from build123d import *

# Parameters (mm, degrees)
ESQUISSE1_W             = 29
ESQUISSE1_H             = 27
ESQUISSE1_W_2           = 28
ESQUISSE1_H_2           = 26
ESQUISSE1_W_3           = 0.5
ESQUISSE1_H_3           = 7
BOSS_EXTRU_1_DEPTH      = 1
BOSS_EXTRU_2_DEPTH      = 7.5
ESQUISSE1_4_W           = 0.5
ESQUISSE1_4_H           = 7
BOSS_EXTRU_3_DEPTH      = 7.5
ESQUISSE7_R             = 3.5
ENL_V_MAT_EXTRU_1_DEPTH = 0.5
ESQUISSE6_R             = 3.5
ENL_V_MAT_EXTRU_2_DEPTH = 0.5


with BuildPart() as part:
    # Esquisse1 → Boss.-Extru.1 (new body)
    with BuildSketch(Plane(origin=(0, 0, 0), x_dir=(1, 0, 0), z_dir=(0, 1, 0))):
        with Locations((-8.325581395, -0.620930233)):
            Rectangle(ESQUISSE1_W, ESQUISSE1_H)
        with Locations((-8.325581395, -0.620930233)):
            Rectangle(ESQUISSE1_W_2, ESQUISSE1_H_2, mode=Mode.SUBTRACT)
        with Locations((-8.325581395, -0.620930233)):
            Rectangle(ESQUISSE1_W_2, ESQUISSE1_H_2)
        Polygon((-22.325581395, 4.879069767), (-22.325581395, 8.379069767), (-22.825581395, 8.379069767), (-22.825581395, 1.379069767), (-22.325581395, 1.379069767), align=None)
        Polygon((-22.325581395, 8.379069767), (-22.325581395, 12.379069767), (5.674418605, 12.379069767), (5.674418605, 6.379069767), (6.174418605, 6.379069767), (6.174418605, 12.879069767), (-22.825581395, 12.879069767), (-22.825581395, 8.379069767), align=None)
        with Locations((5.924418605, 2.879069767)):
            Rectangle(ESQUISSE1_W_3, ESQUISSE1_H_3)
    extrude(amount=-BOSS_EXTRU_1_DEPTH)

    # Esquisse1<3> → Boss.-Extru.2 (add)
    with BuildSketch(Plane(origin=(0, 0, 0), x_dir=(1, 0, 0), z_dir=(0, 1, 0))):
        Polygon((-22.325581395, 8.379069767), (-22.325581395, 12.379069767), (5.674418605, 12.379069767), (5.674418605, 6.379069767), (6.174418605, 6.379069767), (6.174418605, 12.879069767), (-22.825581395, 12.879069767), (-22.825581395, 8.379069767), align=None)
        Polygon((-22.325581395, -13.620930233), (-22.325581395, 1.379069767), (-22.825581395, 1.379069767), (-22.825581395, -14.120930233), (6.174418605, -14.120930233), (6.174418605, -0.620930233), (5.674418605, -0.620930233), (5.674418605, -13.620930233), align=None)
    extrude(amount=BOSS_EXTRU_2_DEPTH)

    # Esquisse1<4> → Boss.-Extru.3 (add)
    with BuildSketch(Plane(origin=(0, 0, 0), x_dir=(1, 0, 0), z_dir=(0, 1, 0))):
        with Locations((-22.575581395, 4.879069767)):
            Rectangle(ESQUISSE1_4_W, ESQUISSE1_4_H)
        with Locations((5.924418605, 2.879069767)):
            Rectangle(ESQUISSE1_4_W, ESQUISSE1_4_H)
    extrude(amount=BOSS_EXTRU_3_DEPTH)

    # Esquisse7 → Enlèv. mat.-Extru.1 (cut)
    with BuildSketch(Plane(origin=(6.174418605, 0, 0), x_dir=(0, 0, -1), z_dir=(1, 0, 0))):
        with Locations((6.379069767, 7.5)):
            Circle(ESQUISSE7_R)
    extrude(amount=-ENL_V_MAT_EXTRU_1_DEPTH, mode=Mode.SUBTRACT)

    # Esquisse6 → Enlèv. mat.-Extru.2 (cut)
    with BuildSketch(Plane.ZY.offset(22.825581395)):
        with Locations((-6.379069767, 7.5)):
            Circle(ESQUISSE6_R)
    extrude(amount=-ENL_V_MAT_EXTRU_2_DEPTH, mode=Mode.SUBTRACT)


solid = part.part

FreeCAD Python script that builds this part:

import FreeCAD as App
import Part
import Sketcher
from FreeCAD import Vector

doc = App.newDocument("Part")
body = doc.addObject("PartDesign::Body", "Body")

# Sketch on XZ plane
sketch1 = doc.addObject("Sketcher::SketchObject", "Sketch")
body.addObject(sketch1)
sketch1.AttachmentSupport = (doc.XZ_Plane, [""])
sketch1.MapMode = "FlatFace"
sketch1.addGeometry(Part.LineSegment(Vector(-22.825581, -12.87907, 0), Vector(-22.825581, 14.12093, 0)), False)
sketch1.addGeometry(Part.LineSegment(Vector(-22.825581, 14.12093, 0), Vector(6.174419, 14.12093, 0)), False)
sketch1.addGeometry(Part.LineSegment(Vector(6.174419, 14.12093, 0), Vector(6.174419, -12.87907, 0)), False)
sketch1.addGeometry(Part.LineSegment(Vector(6.174419, -12.87907, 0), Vector(-22.825581, -12.87907, 0)), False)
sketch1.addConstraint(Sketcher.Constraint("Coincident", 0, 2, 1, 1))
sketch1.addConstraint(Sketcher.Constraint("Coincident", 1, 2, 2, 1))
sketch1.addConstraint(Sketcher.Constraint("Coincident", 2, 2, 3, 1))
sketch1.addConstraint(Sketcher.Constraint("Coincident", 3, 2, 0, 1))
sketch1.addConstraint(Sketcher.Constraint("Vertical", 0))
sketch1.addConstraint(Sketcher.Constraint("Horizontal", 1))
sketch1.addConstraint(Sketcher.Constraint("Vertical", 2))
sketch1.addConstraint(Sketcher.Constraint("Horizontal", 3))
sketch1.addConstraint(Sketcher.Constraint("DistanceX", 1, 1, 1, 2, 29.0))
sketch1.addConstraint(Sketcher.Constraint("DistanceY", 0, 1, 0, 2, 27.0))
sketch1.addConstraint(Sketcher.Constraint("DistanceX", 0, 2, -1, 1, 22.825581))
sketch1.addConstraint(Sketcher.Constraint("DistanceY", -1, 1, 0, 2, 14.12093))
pad1 = doc.addObject("PartDesign::Pad", "Pad")
body.addObject(pad1)
pad1.Profile = sketch1
pad1.Length = 1

# Sketch on XZ plane
sketch2 = doc.addObject("Sketcher::SketchObject", "Sketch001")
body.addObject(sketch2)
sketch2.AttachmentSupport = (doc.XZ_Plane, [""])
sketch2.MapMode = "FlatFace"
sketch2.addGeometry(Part.LineSegment(Vector(-22.325581, -8.37907, 0), Vector(-22.325581, -12.37907, 0)), False)
sketch2.addGeometry(Part.LineSegment(Vector(-22.325581, -12.37907, 0), Vector(5.674419, -12.37907, 0)), False)
sketch2.addGeometry(Part.LineSegment(Vector(5.674419, -12.37907, 0), Vector(5.674419, -6.37907, 0)), False)
sketch2.addGeometry(Part.LineSegment(Vector(5.674419, -6.37907, 0), Vector(6.174419, -6.37907, 0)), False)
sketch2.addGeometry(Part.LineSegment(Vector(6.174419, -6.37907, 0), Vector(6.174419, -12.87907, 0)), False)
sketch2.addGeometry(Part.LineSegment(Vector(6.174419, -12.87907, 0), Vector(-22.825581, -12.87907, 0)), False)
sketch2.addGeometry(Part.LineSegment(Vector(-22.825581, -12.87907, 0), Vector(-22.825581, -8.37907, 0)), False)
sketch2.addGeometry(Part.LineSegment(Vector(-22.825581, -8.37907, 0), Vector(-22.325581, -8.37907, 0)), False)
sketch2.addGeometry(Part.LineSegment(Vector(-22.325581, 13.62093, 0), Vector(-22.325581, -1.37907, 0)), False)
sketch2.addGeometry(Part.LineSegment(Vector(-22.325581, -1.37907, 0), Vector(-22.825581, -1.37907, 0)), False)
sketch2.addGeometry(Part.LineSegment(Vector(-22.825581, -1.37907, 0), Vector(-22.825581, 14.12093, 0)), False)
sketch2.addGeometry(Part.LineSegment(Vector(-22.825581, 14.12093, 0), Vector(6.174419, 14.12093, 0)), False)
sketch2.addGeometry(Part.LineSegment(Vector(6.174419, 14.12093, 0), Vector(6.174419, 0.62093, 0)), False)
sketch2.addGeometry(Part.LineSegment(Vector(6.174419, 0.62093, 0), Vector(5.674419, 0.62093, 0)), False)
sketch2.addGeometry(Part.LineSegment(Vector(5.674419, 0.62093, 0), Vector(5.674419, 13.62093, 0)), False)
sketch2.addGeometry(Part.LineSegment(Vector(5.674419, 13.62093, 0), Vector(-22.325581, 13.62093, 0)), False)
sketch2.addConstraint(Sketcher.Constraint("Coincident", 0, 2, 1, 1))
sketch2.addConstraint(Sketcher.Constraint("Coincident", 1, 2, 2, 1))
sketch2.addConstraint(Sketcher.Constraint("Coincident", 2, 2, 3, 1))
sketch2.addConstraint(Sketcher.Constraint("Coincident", 3, 2, 4, 1))
sketch2.addConstraint(Sketcher.Constraint("Coincident", 4, 2, 5, 1))
sketch2.addConstraint(Sketcher.Constraint("Coincident", 5, 2, 6, 1))
sketch2.addConstraint(Sketcher.Constraint("Coincident", 6, 2, 7, 1))
sketch2.addConstraint(Sketcher.Constraint("Coincident", 7, 2, 0, 1))
sketch2.addConstraint(Sketcher.Constraint("Coincident", 8, 2, 9, 1))
sketch2.addConstraint(Sketcher.Constraint("Coincident", 9, 2, 10, 1))
sketch2.addConstraint(Sketcher.Constraint("Coincident", 10, 2, 11, 1))
sketch2.addConstraint(Sketcher.Constraint("Coincident", 11, 2, 12, 1))
sketch2.addConstraint(Sketcher.Constraint("Coincident", 12, 2, 13, 1))
sketch2.addConstraint(Sketcher.Constraint("Coincident", 13, 2, 14, 1))
sketch2.addConstraint(Sketcher.Constraint("Coincident", 14, 2, 15, 1))
sketch2.addConstraint(Sketcher.Constraint("Coincident", 15, 2, 8, 1))
sketch2.addConstraint(Sketcher.Constraint("Vertical", 0))
sketch2.addConstraint(Sketcher.Constraint("Horizontal", 1))
sketch2.addConstraint(Sketcher.Constraint("Vertical", 2))
sketch2.addConstraint(Sketcher.Constraint("Horizontal", 3))
sketch2.addConstraint(Sketcher.Constraint("Vertical", 4))
sketch2.addConstraint(Sketcher.Constraint("Horizontal", 5))
sketch2.addConstraint(Sketcher.Constraint("Vertical", 6))
sketch2.addConstraint(Sketcher.Constraint("Horizontal", 7))
sketch2.addConstraint(Sketcher.Constraint("Vertical", 8))
sketch2.addConstraint(Sketcher.Constraint("Horizontal", 9))
sketch2.addConstraint(Sketcher.Constraint("Vertical", 10))
sketch2.addConstraint(Sketcher.Constraint("Horizontal", 11))
sketch2.addConstraint(Sketcher.Constraint("Vertical", 12))
sketch2.addConstraint(Sketcher.Constraint("Horizontal", 13))
sketch2.addConstraint(Sketcher.Constraint("Vertical", 14))
sketch2.addConstraint(Sketcher.Constraint("Horizontal", 15))
sketch2.addConstraint(Sketcher.Constraint("Vertical", 7, 2, 8, 2))
sketch2.addConstraint(Sketcher.Constraint("Vertical", 6, 2, 9, 2))
sketch2.addConstraint(Sketcher.Constraint("Vertical", 4, 2, 11, 2))
sketch2.addConstraint(Sketcher.Constraint("Vertical", 2, 2, 13, 2))
sketch2.addConstraint(Sketcher.Constraint("Equal", 3, 7))
sketch2.addConstraint(Sketcher.Constraint("DistanceX", 1, 1, 1, 2, 28.0))
sketch2.addConstraint(Sketcher.Constraint("DistanceX", 5, 2, 5, 1, 29.0))
sketch2.addConstraint(Sketcher.Constraint("DistanceY", 0, 2, 0, 1, 4.0))
sketch2.addConstraint(Sketcher.Constraint("DistanceY", 2, 1, 2, 2, 6.0))
sketch2.addConstraint(Sketcher.Constraint("DistanceY", 8, 2, 8, 1, 15.0))
sketch2.addConstraint(Sketcher.Constraint("DistanceY", 14, 1, 14, 2, 13.0))
sketch2.addConstraint(Sketcher.Constraint("DistanceY", 4, 2, 4, 1, 6.5))
sketch2.addConstraint(Sketcher.Constraint("DistanceY", 10, 1, 10, 2, 15.5))
sketch2.addConstraint(Sketcher.Constraint("DistanceY", 7, 2, 8, 2, 7.0))
sketch2.addConstraint(Sketcher.Constraint("DistanceX", 0, 2, -1, 1, 22.325581))
sketch2.addConstraint(Sketcher.Constraint("DistanceY", 0, 2, -1, 1, 12.37907))
pad2 = doc.addObject("PartDesign::Pad", "Pad001")
body.addObject(pad2)
pad2.Profile = sketch2
pad2.Length = 7.5
pad2.Reversed = True

# Sketch on XZ plane
sketch3 = doc.addObject("Sketcher::SketchObject", "Sketch002")
body.addObject(sketch3)
sketch3.AttachmentSupport = (doc.XZ_Plane, [""])
sketch3.MapMode = "FlatFace"
sketch3.addGeometry(Part.LineSegment(Vector(-22.825581, -8.37907, 0), Vector(-22.825581, -1.37907, 0)), False)
sketch3.addGeometry(Part.LineSegment(Vector(-22.825581, -1.37907, 0), Vector(-22.325581, -1.37907, 0)), False)
sketch3.addGeometry(Part.LineSegment(Vector(-22.325581, -1.37907, 0), Vector(-22.325581, -8.37907, 0)), False)
sketch3.addGeometry(Part.LineSegment(Vector(-22.325581, -8.37907, 0), Vector(-22.825581, -8.37907, 0)), False)
sketch3.addGeometry(Part.LineSegment(Vector(5.674419, -6.37907, 0), Vector(5.674419, 0.62093, 0)), False)
sketch3.addGeometry(Part.LineSegment(Vector(5.674419, 0.62093, 0), Vector(6.174419, 0.62093, 0)), False)
sketch3.addGeometry(Part.LineSegment(Vector(6.174419, 0.62093, 0), Vector(6.174419, -6.37907, 0)), False)
sketch3.addGeometry(Part.LineSegment(Vector(6.174419, -6.37907, 0), Vector(5.674419, -6.37907, 0)), False)
sketch3.addConstraint(Sketcher.Constraint("Coincident", 0, 2, 1, 1))
sketch3.addConstraint(Sketcher.Constraint("Coincident", 1, 2, 2, 1))
sketch3.addConstraint(Sketcher.Constraint("Coincident", 2, 2, 3, 1))
sketch3.addConstraint(Sketcher.Constraint("Coincident", 3, 2, 0, 1))
sketch3.addConstraint(Sketcher.Constraint("Coincident", 4, 2, 5, 1))
sketch3.addConstraint(Sketcher.Constraint("Coincident", 5, 2, 6, 1))
sketch3.addConstraint(Sketcher.Constraint("Coincident", 6, 2, 7, 1))
sketch3.addConstraint(Sketcher.Constraint("Coincident", 7, 2, 4, 1))
sketch3.addConstraint(Sketcher.Constraint("Vertical", 0))
sketch3.addConstraint(Sketcher.Constraint("Horizontal", 1))
sketch3.addConstraint(Sketcher.Constraint("Vertical", 2))
sketch3.addConstraint(Sketcher.Constraint("Horizontal", 3))
sketch3.addConstraint(Sketcher.Constraint("Vertical", 4))
sketch3.addConstraint(Sketcher.Constraint("Horizontal", 5))
sketch3.addConstraint(Sketcher.Constraint("Vertical", 6))
sketch3.addConstraint(Sketcher.Constraint("Horizontal", 7))
sketch3.addConstraint(Sketcher.Constraint("Equal", 3, 5))
sketch3.addConstraint(Sketcher.Constraint("Equal", 2, 4))
sketch3.addConstraint(Sketcher.Constraint("DistanceY", 0, 1, 0, 2, 7.0))
sketch3.addConstraint(Sketcher.Constraint("DistanceX", 1, 1, 1, 2, 0.5))
sketch3.addConstraint(Sketcher.Constraint("DistanceX", 1, 2, 4, 2, 28.0))
sketch3.addConstraint(Sketcher.Constraint("DistanceY", 1, 2, 4, 2, 2.0))
sketch3.addConstraint(Sketcher.Constraint("DistanceX", 0, 2, -1, 1, 22.825581))
sketch3.addConstraint(Sketcher.Constraint("DistanceY", 0, 2, -1, 1, 1.37907))
pad3 = doc.addObject("PartDesign::Pad", "Pad002")
body.addObject(pad3)
pad3.Profile = sketch3
pad3.Length = 7.5
pad3.Reversed = True

# Sketch on YZ plane
sketch4 = doc.addObject("Sketcher::SketchObject", "Sketch003")
body.addObject(sketch4)
sketch4.AttachmentSupport = (doc.YZ_Plane, [""])
sketch4.MapMode = "FlatFace"
sketch4.AttachmentOffset = App.Placement(Vector(0, 0, 6.174419), App.Rotation())
sketch4.addGeometry(Part.Circle(Vector(7.5, -6.37907, 0), Vector(0, 0, 1), 3.5), False)
sketch4.addConstraint(Sketcher.Constraint("Diameter", 0, 7.0))
sketch4.addConstraint(Sketcher.Constraint("DistanceX", -1, 1, 0, 3, 7.5))
sketch4.addConstraint(Sketcher.Constraint("DistanceY", 0, 3, -1, 1, 6.37907))
pocket1 = doc.addObject("PartDesign::Pocket", "Pocket")
body.addObject(pocket1)
pocket1.Profile = sketch4
pocket1.Length = 0.5

# Sketch on YZ plane
sketch5 = doc.addObject("Sketcher::SketchObject", "Sketch004")
body.addObject(sketch5)
sketch5.AttachmentSupport = (doc.YZ_Plane, [""])
sketch5.MapMode = "FlatFace"
sketch5.AttachmentOffset = App.Placement(Vector(0, 0, -22.825581), App.Rotation())
sketch5.addGeometry(Part.Circle(Vector(7.5, -6.37907, 0), Vector(0, 0, 1), 3.5), False)
sketch5.addConstraint(Sketcher.Constraint("Diameter", 0, 7.0))
sketch5.addConstraint(Sketcher.Constraint("DistanceX", -1, 1, 0, 3, 7.5))
sketch5.addConstraint(Sketcher.Constraint("DistanceY", 0, 3, -1, 1, 6.37907))
pocket2 = doc.addObject("PartDesign::Pocket", "Pocket001")
body.addObject(pocket2)
pocket2.Profile = sketch5
pocket2.Length = 0.5
pocket2.Reversed = True

doc.recompute()
